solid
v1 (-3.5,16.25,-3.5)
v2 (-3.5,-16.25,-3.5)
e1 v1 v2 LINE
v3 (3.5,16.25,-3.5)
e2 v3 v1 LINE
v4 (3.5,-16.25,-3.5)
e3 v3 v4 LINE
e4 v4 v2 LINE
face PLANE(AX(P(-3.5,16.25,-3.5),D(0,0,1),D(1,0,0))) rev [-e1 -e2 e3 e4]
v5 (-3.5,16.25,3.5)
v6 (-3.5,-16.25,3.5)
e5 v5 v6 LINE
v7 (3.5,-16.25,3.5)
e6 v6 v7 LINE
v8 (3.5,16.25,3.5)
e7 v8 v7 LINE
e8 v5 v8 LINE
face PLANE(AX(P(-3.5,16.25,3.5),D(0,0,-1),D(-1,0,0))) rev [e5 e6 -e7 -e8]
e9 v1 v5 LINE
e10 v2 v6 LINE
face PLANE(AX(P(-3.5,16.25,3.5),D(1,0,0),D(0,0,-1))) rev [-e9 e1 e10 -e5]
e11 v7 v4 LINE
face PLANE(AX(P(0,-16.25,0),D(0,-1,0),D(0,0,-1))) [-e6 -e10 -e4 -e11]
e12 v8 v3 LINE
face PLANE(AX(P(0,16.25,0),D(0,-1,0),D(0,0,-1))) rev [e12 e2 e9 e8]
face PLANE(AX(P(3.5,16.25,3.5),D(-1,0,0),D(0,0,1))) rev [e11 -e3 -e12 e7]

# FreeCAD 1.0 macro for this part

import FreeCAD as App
import Part
import Sketcher

V = App.Vector
Q = App.Units.Quantity


def add_polygon(sketch, points):
    """Adds a closed chain of lines whose ends are joined by coincident constraints."""
    first, n = sketch.GeometryCount, len(points)
    for a, b in zip(points, points[1:] + points[:1]):
        sketch.addGeometry(Part.LineSegment(App.Vector(*a, 0), App.Vector(*b, 0)), False)
    for i in range(n):
        sketch.addConstraint(Sketcher.Constraint("Coincident", first + i, 2, first + (i + 1) % n, 1))

doc = App.newDocument("Part")
body = doc.addObject("PartDesign::Body", "Body")

# Sketch on XZ plane
sketch1 = body.newObject("Sketcher::SketchObject", "Sketch")
sketch1.AttachmentSupport = (doc.getObject("XZ_Plane"), [""])
sketch1.MapMode = "FlatFace"
add_polygon(sketch1, [(-4, -4), (-4, 4), (4, 4), (4, -4)])  # lines 0-3
sketch1.addConstraint(Sketcher.Constraint("Vertical", 0))
sketch1.addConstraint(Sketcher.Constraint("Horizontal", 1))
sketch1.addConstraint(Sketcher.Constraint("Vertical", 2))
sketch1.addConstraint(Sketcher.Constraint("Horizontal", 3))
sketch1.addConstraint(Sketcher.Constraint("Symmetric", 0, 2, 2, 2, -1, 1))
sketch1.addConstraint(Sketcher.Constraint("Equal", 3, 0))
sketch1.addConstraint(Sketcher.Constraint("DistanceX", 1, 1, 1, 2, Q("7 mm")))
pad1 = body.newObject("PartDesign::Pad", "Pad")
pad1.Profile = sketch1
pad1.Length = 32.5
pad1.Midplane = True

doc.recompute()
